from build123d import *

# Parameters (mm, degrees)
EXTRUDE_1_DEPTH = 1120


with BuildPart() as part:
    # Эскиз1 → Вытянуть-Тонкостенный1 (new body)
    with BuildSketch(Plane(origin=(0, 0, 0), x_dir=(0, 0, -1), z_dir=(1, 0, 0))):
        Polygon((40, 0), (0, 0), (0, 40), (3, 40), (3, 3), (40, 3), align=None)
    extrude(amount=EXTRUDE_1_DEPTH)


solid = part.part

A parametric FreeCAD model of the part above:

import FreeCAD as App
import Part
import Sketcher

V = App.Vector

doc = App.newDocument("Part")
body = doc.addObject("PartDesign::Body", "Body")

# Sketch on YZ plane
sketch1 = body.newObject("Sketcher::SketchObject", "Sketch")
sketch1.AttachmentSupport = (doc.getObject("YZ_Plane"), [""])
sketch1.MapMode = "FlatFace"
sketch1.addGeometry(Part.LineSegment(V(0, 0, 0), V(0, -40, 0)), False)
sketch1.addGeometry(Part.LineSegment(V(0, -40, 0), V(3, -40, 0)), False)
sketch1.addGeometry(Part.LineSegment(V(3, -40, 0), V(3, -3, 0)), False)
sketch1.addGeometry(Part.LineSegment(V(3, -3, 0), V(40, -3, 0)), False)
sketch1.addGeometry(Part.LineSegment(V(40, -3, 0), V(40, 0, 0)), False)
sketch1.addGeometry(Part.LineSegment(V(40, 0, 0), V(0, 0, 0)), False)
sketch1.addConstraint(Sketcher.Constraint("Coincident", 0, 2, 1, 1))
sketch1.addConstraint(Sketcher.Constraint("Coincident", 1, 2, 2, 1))
sketch1.addConstraint(Sketcher.Constraint("Coincident", 2, 2, 3, 1))
sketch1.addConstraint(Sketcher.Constraint("Coincident", 3, 2, 4, 1))
sketch1.addConstraint(Sketcher.Constraint("Coincident", 4, 2, 5, 1))
sketch1.addConstraint(Sketcher.Constraint("Coincident", 5, 2, 0, 1))
sketch1.addConstraint(Sketcher.Constraint("Vertical", 0))
sketch1.addConstraint(Sketcher.Constraint("Horizontal", 1))
sketch1.addConstraint(Sketcher.Constraint("Vertical", 2))
sketch1.addConstraint(Sketcher.Constraint("Horizontal", 3))
sketch1.addConstraint(Sketcher.Constraint("Vertical", 4))
sketch1.addConstraint(Sketcher.Constraint("Horizontal", 5))
sketch1.addConstraint(Sketcher.Constraint("Coincident", 5, 2, -1, 1))
sketch1.addConstraint(Sketcher.Constraint("Equal", 5, 0))
sketch1.addConstraint(Sketcher.Constraint("Equal", 3, 2))
sketch1.addConstraint(Sketcher.Constraint("DistanceX", 1, 1, 1, 2, 3.0))
sketch1.addConstraint(Sketcher.Constraint("DistanceX", 3, 1, 3, 2, 37.0))
pad1 = body.newObject("PartDesign::Pad", "Pad")
pad1.Profile = sketch1
pad1.Length = 1120

doc.recompute()
